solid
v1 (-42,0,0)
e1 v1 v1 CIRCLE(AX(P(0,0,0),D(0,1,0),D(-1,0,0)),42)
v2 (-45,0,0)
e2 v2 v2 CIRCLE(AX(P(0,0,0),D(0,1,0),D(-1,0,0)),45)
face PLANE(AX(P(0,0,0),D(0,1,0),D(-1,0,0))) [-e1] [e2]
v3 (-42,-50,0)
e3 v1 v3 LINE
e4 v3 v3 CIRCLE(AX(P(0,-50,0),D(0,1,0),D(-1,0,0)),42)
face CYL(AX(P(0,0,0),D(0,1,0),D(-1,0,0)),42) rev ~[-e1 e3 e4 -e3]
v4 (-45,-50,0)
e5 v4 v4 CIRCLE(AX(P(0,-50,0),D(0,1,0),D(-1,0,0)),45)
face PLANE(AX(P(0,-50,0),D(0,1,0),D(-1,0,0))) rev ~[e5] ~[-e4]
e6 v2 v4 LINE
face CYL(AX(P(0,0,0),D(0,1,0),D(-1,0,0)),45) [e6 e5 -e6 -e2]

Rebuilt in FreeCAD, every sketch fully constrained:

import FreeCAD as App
import Part
import Sketcher

doc = App.newDocument("Part")
body = doc.addObject("PartDesign::Body", "Body")

sketch1 = body.newObject("Sketcher::SketchObject", "Sketch")
sketch1.AttachmentSupport = (doc.getObject("XZ_Plane"), [""])
sketch1.MapMode = "FlatFace"
sketch1.addGeometry(Part.Circle(App.Vector(0, 0, 0), App.Vector(0, 0, 1), 45), False)
sketch1.addGeometry(Part.Circle(App.Vector(0, 0, 0), App.Vector(0, 0, 1), 42), False)
sketch1.addConstraint(Sketcher.Constraint("Coincident", 0, 3, -1, 1))
sketch1.addConstraint(Sketcher.Constraint("Coincident", 1, 3, -1, 1))
sketch1.addConstraint(Sketcher.Constraint("Diameter", 0, 90.0))
sketch1.addConstraint(Sketcher.Constraint("Diameter", 1, 84.0))
pad1 = body.newObject("PartDesign::Pad", "Pad")
pad1.Profile = sketch1
pad1.Length = 50

doc.recompute()
